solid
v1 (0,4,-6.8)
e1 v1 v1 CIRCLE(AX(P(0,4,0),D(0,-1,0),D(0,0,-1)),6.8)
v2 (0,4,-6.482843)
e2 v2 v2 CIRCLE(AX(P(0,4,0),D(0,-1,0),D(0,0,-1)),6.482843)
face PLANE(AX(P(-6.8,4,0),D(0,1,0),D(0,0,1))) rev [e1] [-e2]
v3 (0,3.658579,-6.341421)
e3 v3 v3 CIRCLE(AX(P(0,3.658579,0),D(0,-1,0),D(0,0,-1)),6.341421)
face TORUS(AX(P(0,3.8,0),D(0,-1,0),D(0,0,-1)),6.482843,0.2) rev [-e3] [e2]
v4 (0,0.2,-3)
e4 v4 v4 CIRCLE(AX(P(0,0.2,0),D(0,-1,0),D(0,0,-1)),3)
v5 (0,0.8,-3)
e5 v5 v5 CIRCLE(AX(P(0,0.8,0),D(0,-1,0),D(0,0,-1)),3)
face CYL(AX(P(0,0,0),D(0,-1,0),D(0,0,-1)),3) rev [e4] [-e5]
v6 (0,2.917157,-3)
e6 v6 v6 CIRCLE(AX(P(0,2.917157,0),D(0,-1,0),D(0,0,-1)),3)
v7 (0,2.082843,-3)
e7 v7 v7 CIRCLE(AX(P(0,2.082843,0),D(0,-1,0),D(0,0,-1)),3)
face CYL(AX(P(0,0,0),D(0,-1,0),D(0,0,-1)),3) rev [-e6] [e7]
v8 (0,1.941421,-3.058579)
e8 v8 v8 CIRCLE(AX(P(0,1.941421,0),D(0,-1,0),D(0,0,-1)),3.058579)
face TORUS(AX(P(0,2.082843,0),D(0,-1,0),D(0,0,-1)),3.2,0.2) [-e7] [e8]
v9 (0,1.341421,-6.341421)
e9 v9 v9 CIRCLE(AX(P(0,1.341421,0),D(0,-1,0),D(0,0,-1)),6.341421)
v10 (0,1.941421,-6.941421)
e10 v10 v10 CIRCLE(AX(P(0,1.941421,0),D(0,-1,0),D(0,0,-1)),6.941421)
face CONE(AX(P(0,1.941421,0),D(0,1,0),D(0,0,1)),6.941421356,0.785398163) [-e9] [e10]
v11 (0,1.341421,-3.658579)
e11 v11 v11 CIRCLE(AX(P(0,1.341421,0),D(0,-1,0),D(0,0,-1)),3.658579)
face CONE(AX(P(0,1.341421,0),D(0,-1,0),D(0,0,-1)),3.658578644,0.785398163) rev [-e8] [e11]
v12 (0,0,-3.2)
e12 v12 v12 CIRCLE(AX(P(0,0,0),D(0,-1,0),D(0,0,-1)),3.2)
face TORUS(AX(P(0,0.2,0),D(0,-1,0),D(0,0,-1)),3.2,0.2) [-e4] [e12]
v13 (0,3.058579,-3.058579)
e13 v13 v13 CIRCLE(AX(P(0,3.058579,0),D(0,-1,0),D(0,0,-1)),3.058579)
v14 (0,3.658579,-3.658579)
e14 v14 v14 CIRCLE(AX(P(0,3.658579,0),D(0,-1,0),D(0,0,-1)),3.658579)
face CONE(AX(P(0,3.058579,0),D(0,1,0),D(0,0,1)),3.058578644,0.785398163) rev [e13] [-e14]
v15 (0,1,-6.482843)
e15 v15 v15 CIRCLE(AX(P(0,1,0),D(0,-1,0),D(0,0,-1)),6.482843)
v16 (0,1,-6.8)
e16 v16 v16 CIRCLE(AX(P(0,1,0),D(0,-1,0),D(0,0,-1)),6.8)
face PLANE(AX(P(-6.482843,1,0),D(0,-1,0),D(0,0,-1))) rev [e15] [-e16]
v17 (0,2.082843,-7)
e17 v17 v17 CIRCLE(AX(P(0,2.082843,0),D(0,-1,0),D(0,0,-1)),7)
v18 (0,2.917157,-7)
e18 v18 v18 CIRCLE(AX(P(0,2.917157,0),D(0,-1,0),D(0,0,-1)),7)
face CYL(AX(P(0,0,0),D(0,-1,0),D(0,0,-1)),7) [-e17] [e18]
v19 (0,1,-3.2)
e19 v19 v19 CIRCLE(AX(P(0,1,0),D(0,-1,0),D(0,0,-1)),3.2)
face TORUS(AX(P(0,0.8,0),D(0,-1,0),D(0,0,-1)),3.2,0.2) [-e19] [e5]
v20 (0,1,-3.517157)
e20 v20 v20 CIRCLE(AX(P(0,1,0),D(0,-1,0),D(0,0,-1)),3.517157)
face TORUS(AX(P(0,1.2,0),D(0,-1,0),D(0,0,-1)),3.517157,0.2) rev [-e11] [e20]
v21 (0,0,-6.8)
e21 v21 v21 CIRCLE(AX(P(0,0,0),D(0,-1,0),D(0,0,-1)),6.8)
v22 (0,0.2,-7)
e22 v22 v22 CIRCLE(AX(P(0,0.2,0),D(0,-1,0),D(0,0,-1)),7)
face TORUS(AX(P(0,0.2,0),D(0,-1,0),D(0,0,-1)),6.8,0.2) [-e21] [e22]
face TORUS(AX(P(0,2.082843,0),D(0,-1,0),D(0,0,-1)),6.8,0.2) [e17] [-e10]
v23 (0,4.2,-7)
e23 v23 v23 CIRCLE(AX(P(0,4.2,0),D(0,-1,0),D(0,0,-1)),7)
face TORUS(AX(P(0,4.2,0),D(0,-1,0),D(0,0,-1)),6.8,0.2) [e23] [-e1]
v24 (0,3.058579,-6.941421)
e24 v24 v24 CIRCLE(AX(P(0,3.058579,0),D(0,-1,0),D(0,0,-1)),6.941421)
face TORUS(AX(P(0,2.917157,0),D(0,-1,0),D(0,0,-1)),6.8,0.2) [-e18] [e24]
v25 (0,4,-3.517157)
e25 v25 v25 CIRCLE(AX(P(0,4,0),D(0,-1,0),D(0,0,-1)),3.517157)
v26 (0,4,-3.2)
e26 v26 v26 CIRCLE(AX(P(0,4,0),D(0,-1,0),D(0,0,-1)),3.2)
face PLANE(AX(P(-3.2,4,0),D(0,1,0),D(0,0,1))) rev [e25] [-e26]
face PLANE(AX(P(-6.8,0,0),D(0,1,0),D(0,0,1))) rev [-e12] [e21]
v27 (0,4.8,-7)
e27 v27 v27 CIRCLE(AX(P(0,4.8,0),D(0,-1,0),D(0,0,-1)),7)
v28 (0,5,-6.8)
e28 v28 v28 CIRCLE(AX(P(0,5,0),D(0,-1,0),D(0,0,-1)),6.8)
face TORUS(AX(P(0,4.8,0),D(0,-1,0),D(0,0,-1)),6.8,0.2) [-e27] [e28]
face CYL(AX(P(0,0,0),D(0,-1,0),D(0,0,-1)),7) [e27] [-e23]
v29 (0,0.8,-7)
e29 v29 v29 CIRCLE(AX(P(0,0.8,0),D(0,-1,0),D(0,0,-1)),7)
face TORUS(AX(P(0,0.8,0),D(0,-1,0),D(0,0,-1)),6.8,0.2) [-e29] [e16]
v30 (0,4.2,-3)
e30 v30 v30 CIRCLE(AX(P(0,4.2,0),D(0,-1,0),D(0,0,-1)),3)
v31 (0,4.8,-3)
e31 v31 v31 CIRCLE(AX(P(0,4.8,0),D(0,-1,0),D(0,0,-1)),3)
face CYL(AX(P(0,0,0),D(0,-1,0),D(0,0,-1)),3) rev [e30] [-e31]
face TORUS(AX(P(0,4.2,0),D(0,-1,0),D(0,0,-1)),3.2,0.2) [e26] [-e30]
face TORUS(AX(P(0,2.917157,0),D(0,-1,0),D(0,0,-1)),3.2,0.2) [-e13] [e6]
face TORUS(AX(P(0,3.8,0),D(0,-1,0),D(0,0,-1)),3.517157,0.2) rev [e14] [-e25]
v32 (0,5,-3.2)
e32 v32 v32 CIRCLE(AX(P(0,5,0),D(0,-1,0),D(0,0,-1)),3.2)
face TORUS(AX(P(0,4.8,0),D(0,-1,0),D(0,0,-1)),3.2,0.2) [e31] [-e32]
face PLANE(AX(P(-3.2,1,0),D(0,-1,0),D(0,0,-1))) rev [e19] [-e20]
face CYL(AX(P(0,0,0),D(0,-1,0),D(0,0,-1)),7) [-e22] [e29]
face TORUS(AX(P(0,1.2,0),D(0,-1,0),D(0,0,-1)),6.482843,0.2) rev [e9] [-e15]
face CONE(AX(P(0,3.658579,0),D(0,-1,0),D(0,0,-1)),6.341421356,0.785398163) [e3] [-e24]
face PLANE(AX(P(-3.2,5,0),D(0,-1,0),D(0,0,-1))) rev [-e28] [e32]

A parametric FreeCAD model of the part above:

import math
import FreeCAD as App
import Part
import Sketcher

doc = App.newDocument("Part")
params = doc.addObject("Spreadsheet::Sheet", "Params")
for row, (alias, value) in enumerate([
    ("sketch1_radius", "0.2 mm"),
    ("sketch1_width", "3.6 mm"),
    ("sketch1_height", "0.6 mm"),
    ("revolution_angle", "360 deg"),
], start=1):
    params.set(f"A{row}", alias)
    params.set(f"B{row}", "=" + value)
    params.setAlias(f"B{row}", alias)

body = doc.addObject("PartDesign::Body", "Body")

# Sketch on XY plane
sketch1 = body.newObject("Sketcher::SketchObject", "Sketch")
sketch1.AttachmentSupport = (doc.getObject("XY_Plane"), [""])
sketch1.MapMode = "FlatFace"
sketch1.addGeometry([
    Part.LineSegment(App.Vector(-3, 0.2, 0), App.Vector(-3, 0.8, 0)),  # 0
    Part.ArcOfCircle(Part.Circle(App.Vector(-3.2, 0.8, 0), App.Vector(0, 0, 1), 0.2), math.radians(0), math.radians(90)),  # 1
    Part.LineSegment(App.Vector(-3.2, 1, 0), App.Vector(-3.52, 1, 0)),  # 2
    Part.ArcOfCircle(Part.Circle(App.Vector(-3.52, 1.2, 0), App.Vector(0, 0, 1), 0.2), math.radians(135), math.radians(270)),  # 3
    Part.LineSegment(App.Vector(-3.66, 1.34, 0), App.Vector(-3.06, 1.94, 0)),  # 4
    Part.ArcOfCircle(Part.Circle(App.Vector(-3.2, 2.08, 0), App.Vector(0, 0, 1), 0.2), math.radians(-45), math.radians(0)),  # 5
    Part.LineSegment(App.Vector(-3, 2.08, 0), App.Vector(-3, 2.92, 0)),  # 6
    Part.ArcOfCircle(Part.Circle(App.Vector(-3.2, 2.92, 0), App.Vector(0, 0, 1), 0.2), math.radians(0), math.radians(45)),  # 7
    Part.LineSegment(App.Vector(-3.06, 3.06, 0), App.Vector(-3.66, 3.66, 0)),  # 8
    Part.ArcOfCircle(Part.Circle(App.Vector(-3.52, 3.8, 0), App.Vector(0, 0, 1), 0.2), math.radians(90), math.radians(225)),  # 9
    Part.LineSegment(App.Vector(-3.52, 4, 0), App.Vector(-3.2, 4, 0)),  # 10
    Part.ArcOfCircle(Part.Circle(App.Vector(-3.2, 4.2, 0), App.Vector(0, 0, 1), 0.2), math.radians(-90), math.radians(0)),  # 11
    Part.LineSegment(App.Vector(-3, 4.2, 0), App.Vector(-3, 4.8, 0)),  # 12
    Part.ArcOfCircle(Part.Circle(App.Vector(-3.2, 4.8, 0), App.Vector(0, 0, 1), 0.2), math.radians(0), math.radians(90)),  # 13
    Part.LineSegment(App.Vector(-3.2, 5, 0), App.Vector(-6.8, 5, 0)),  # 14
    Part.ArcOfCircle(Part.Circle(App.Vector(-6.8, 4.8, 0), App.Vector(0, 0, 1), 0.2), math.radians(90), math.radians(180)),  # 15
    Part.LineSegment(App.Vector(-7, 4.8, 0), App.Vector(-7, 4.2, 0)),  # 16
    Part.ArcOfCircle(Part.Circle(App.Vector(-6.8, 4.2, 0), App.Vector(0, 0, 1), 0.2), math.radians(-180), math.radians(-90)),  # 17
    Part.LineSegment(App.Vector(-6.8, 4, 0), App.Vector(-6.48, 4, 0)),  # 18
    Part.ArcOfCircle(Part.Circle(App.Vector(-6.48, 3.8, 0), App.Vector(0, 0, 1), 0.2), math.radians(-45), math.radians(90)),  # 19
    Part.LineSegment(App.Vector(-6.34, 3.66, 0), App.Vector(-6.94, 3.06, 0)),  # 20
    Part.ArcOfCircle(Part.Circle(App.Vector(-6.8, 2.92, 0), App.Vector(0, 0, 1), 0.2), math.radians(135), math.radians(180)),  # 21
    Part.LineSegment(App.Vector(-7, 2.92, 0), App.Vector(-7, 2.08, 0)),  # 22
    Part.ArcOfCircle(Part.Circle(App.Vector(-6.8, 2.08, 0), App.Vector(0, 0, 1), 0.2), math.radians(180), math.radians(225)),  # 23
    Part.LineSegment(App.Vector(-6.94, 1.94, 0), App.Vector(-6.34, 1.34, 0)),  # 24
    Part.ArcOfCircle(Part.Circle(App.Vector(-6.48, 1.2, 0), App.Vector(0, 0, 1), 0.2), math.radians(-90), math.radians(45)),  # 25
    Part.LineSegment(App.Vector(-6.48, 1, 0), App.Vector(-6.8, 1, 0)),  # 26
    Part.ArcOfCircle(Part.Circle(App.Vector(-6.8, 0.8, 0), App.Vector(0, 0, 1), 0.2), math.radians(90), math.radians(180)),  # 27
    Part.LineSegment(App.Vector(-7, 0.8, 0), App.Vector(-7, 0.2, 0)),  # 28
    Part.ArcOfCircle(Part.Circle(App.Vector(-6.8, 0.2, 0), App.Vector(0, 0, 1), 0.2), math.radians(-180), math.radians(-90)),  # 29
    Part.LineSegment(App.Vector(-6.8, 0, 0), App.Vector(-3.2, 0, 0)),  # 30
    Part.ArcOfCircle(Part.Circle(App.Vector(-3.2, 0.2, 0), App.Vector(0, 0, 1), 0.2), math.radians(-90), math.radians(0)),  # 31
], False)
sketch1.addConstraint([
    Sketcher.Constraint("Tangent", 0, 2, 1, 1),
    Sketcher.Constraint("Tangent", 1, 2, 2, 1),
    Sketcher.Constraint("Tangent", 2, 2, 3, 2),
    Sketcher.Constraint("Tangent", 3, 1, 4, 1),
    Sketcher.Constraint("Tangent", 4, 2, 5, 1),
    Sketcher.Constraint("Tangent", 5, 2, 6, 1),
    Sketcher.Constraint("Tangent", 6, 2, 7, 1),
    Sketcher.Constraint("Tangent", 7, 2, 8, 1),
    Sketcher.Constraint("Tangent", 8, 2, 9, 2),
    Sketcher.Constraint("Tangent", 9, 1, 10, 1),
    Sketcher.Constraint("Tangent", 10, 2, 11, 1),
    Sketcher.Constraint("Tangent", 11, 2, 12, 1),
    Sketcher.Constraint("Tangent", 12, 2, 13, 1),
    Sketcher.Constraint("Tangent", 13, 2, 14, 1),
    Sketcher.Constraint("Tangent", 14, 2, 15, 1),
    Sketcher.Constraint("Tangent", 15, 2, 16, 1),
    Sketcher.Constraint("Tangent", 16, 2, 17, 1),
    Sketcher.Constraint("Tangent", 17, 2, 18, 1),
    Sketcher.Constraint("Tangent", 18, 2, 19, 2),
    Sketcher.Constraint("Tangent", 19, 1, 20, 1),
    Sketcher.Constraint("Tangent", 20, 2, 21, 1),
    Sketcher.Constraint("Tangent", 21, 2, 22, 1),
    Sketcher.Constraint("Tangent", 22, 2, 23, 1),
    Sketcher.Constraint("Tangent", 23, 2, 24, 1),
    Sketcher.Constraint("Tangent", 24, 2, 25, 2),
    Sketcher.Constraint("Tangent", 25, 1, 26, 1),
    Sketcher.Constraint("Tangent", 26, 2, 27, 1),
    Sketcher.Constraint("Tangent", 27, 2, 28, 1),
    Sketcher.Constraint("Tangent", 28, 2, 29, 1),
    Sketcher.Constraint("Tangent", 29, 2, 30, 1),
    Sketcher.Constraint("Tangent", 30, 2, 31, 1),
    Sketcher.Constraint("Tangent", 31, 2, 0, 1),
    Sketcher.Constraint("Vertical", 0),
    Sketcher.Constraint("Horizontal", 2),
    Sketcher.Constraint("Vertical", 6),
    Sketcher.Constraint("Horizontal", 10),
    Sketcher.Constraint("Vertical", 12),
    Sketcher.Constraint("Horizontal", 14),
    Sketcher.Constraint("Vertical", 16),
    Sketcher.Constraint("Horizontal", 18),
    Sketcher.Constraint("Vertical", 22),
    Sketcher.Constraint("Horizontal", 26),
    Sketcher.Constraint("Vertical", 28),
    Sketcher.Constraint("Horizontal", 30),
    Sketcher.Constraint("Equal", 1, 3),
    Sketcher.Constraint("Equal", 3, 5),
    Sketcher.Constraint("Equal", 5, 7),
    Sketcher.Constraint("Equal", 7, 9),
    Sketcher.Constraint("Equal", 9, 11),
    Sketcher.Constraint("Equal", 11, 13),
    Sketcher.Constraint("Equal", 13, 15),
    Sketcher.Constraint("Equal", 15, 17),
    Sketcher.Constraint("Equal", 17, 19),
    Sketcher.Constraint("Equal", 19, 21),
    Sketcher.Constraint("Equal", 21, 23),
    Sketcher.Constraint("Equal", 23, 25),
    Sketcher.Constraint("Equal", 25, 27),
    Sketcher.Constraint("Equal", 27, 29),
    Sketcher.Constraint("Equal", 29, 31),
    Sketcher.Constraint("PointOnObject", 29, 2, -1),
    Sketcher.Constraint("Perpendicular", 4, 8),
    Sketcher.Constraint("Perpendicular", 8, 20),
    Sketcher.Constraint("Perpendicular", 20, 24),
    Sketcher.Constraint("Horizontal", 11, 3, 17, 3),
    Sketcher.Constraint("Horizontal", 7, 3, 21, 3),
    Sketcher.Constraint("Horizontal", 5, 3, 23, 3),
    Sketcher.Constraint("Horizontal", 3, 3, 25, 3),
    Sketcher.Constraint("Horizontal", 8, 2, 19, 1),
    Sketcher.Constraint("Vertical", 1, 3, 5, 3),
    Sketcher.Constraint("Vertical", 3, 3, 9, 3),
    Sketcher.Constraint("Vertical", 7, 3, 11, 3),
    Sketcher.Constraint("Vertical", 17, 3, 21, 3),
    Sketcher.Constraint("Vertical", 23, 3, 27, 3),
    Sketcher.Constraint("Equal", 0, 12),
    Sketcher.Constraint("Radius", 1, 0.2),
    Sketcher.Constraint("DistanceX", 14, 2, 14, 1, 3.6),
    Sketcher.Constraint("DistanceY", 0, 1, 0, 2, 0.6),
    Sketcher.Constraint("DistanceX", 0, 2, -1, 1, 3.0),
    Sketcher.Constraint("DistanceY", -1, 1, 9, 1, 4.0),
    Sketcher.Constraint("DistanceX", 3, 1, 4, 2, 0.6),
])
sketch1.setExpression("Constraints[74]", "Params.sketch1_radius")
sketch1.setExpression("Constraints[75]", "Params.sketch1_width")
sketch1.setExpression("Constraints[76]", "Params.sketch1_height")
revolution = body.newObject("PartDesign::Revolution", "Revolution")
revolution.Profile = sketch1
revolution.ReferenceAxis = (sketch1, ["V_Axis"])
revolution.setExpression("Angle", "Params.revolution_angle")

doc.recompute()
